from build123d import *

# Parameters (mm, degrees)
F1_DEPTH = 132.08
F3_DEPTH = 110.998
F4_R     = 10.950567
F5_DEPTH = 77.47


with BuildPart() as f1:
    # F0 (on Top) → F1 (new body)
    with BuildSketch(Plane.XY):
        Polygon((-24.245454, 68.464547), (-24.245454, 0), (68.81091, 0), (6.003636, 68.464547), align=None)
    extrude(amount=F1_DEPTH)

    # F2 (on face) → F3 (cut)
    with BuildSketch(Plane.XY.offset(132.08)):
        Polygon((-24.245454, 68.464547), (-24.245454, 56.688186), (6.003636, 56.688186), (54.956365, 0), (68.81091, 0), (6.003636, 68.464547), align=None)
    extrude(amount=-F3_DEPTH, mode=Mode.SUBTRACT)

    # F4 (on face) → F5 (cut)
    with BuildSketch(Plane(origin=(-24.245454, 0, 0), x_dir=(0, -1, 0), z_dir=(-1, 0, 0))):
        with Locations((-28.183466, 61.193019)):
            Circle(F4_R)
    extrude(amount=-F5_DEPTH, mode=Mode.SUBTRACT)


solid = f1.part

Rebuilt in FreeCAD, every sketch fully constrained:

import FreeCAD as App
import Part
import Sketcher
Q = App.Units.Quantity


def add_polygon(sketch, points):
    """Adds a closed chain of lines whose ends are joined by coincident constraints."""
    first, n = sketch.GeometryCount, len(points)
    for a, b in zip(points, points[1:] + points[:1]):
        sketch.addGeometry(Part.LineSegment(App.Vector(*a, 0), App.Vector(*b, 0)), False)
    for i in range(n):
        sketch.addConstraint(Sketcher.Constraint("Coincident", first + i, 2, first + (i + 1) % n, 1))

doc = App.newDocument("Part")
body = doc.addObject("PartDesign::Body", "Body")

# Sketch on XY plane
sketch1 = doc.addObject("Sketcher::SketchObject", "Sketch")
body.addObject(sketch1)
sketch1.AttachmentSupport = (doc.XY_Plane, [""])
sketch1.MapMode = "FlatFace"
add_polygon(sketch1, [(-24, 68), (-24, 0), (69, 0), (6, 68)])  # lines 0-3
sketch1.addConstraint(Sketcher.Constraint("Vertical", 0))
sketch1.addConstraint(Sketcher.Constraint("Horizontal", 1))
sketch1.addConstraint(Sketcher.Constraint("Horizontal", 3))
sketch1.addConstraint(Sketcher.Constraint("PointOnObject", 0, 2, -1))
sketch1.addConstraint(Sketcher.Constraint("DistanceX", 3, 2, 3, 1, Q("30.24909 mm")))
sketch1.addConstraint(Sketcher.Constraint("DistanceX", 1, 1, 1, 2, Q("93.056364 mm")))
sketch1.addConstraint(Sketcher.Constraint("DistanceY", 0, 2, 0, 1, Q("68.464547 mm")))
sketch1.addConstraint(Sketcher.Constraint("DistanceX", -1, 1, 1, 2, Q("68.81091 mm")))
pad1 = doc.addObject("PartDesign::Pad", "Pad")
body.addObject(pad1)
pad1.Profile = sketch1
pad1.Length = Q("5.2 in")

# Sketch on XY plane
sketch2 = doc.addObject("Sketcher::SketchObject", "Sketch001")
body.addObject(sketch2)
sketch2.AttachmentSupport = (doc.XY_Plane, [""])
sketch2.MapMode = "FlatFace"
sketch2.AttachmentOffset = App.Placement(App.Vector(0, 0, 5.2 * 25.4), App.Rotation())
add_polygon(sketch2, [(-24, 68), (-24, 57), (6, 57), (55, 0), (69, 0), (6, 68)])  # lines 0-5
sketch2.addConstraint(Sketcher.Constraint("Vertical", 0))
sketch2.addConstraint(Sketcher.Constraint("Horizontal", 1))
sketch2.addConstraint(Sketcher.Constraint("Horizontal", 3))
sketch2.addConstraint(Sketcher.Constraint("Horizontal", 5))
sketch2.addConstraint(Sketcher.Constraint("PointOnObject", 2, 2, -1))
sketch2.addConstraint(Sketcher.Constraint("Vertical", 1, 2, 4, 2))
sketch2.addConstraint(Sketcher.Constraint("Distance", 2, Q("74.8994 mm")))
sketch2.addConstraint(Sketcher.Constraint("DistanceX", 1, 1, 1, 2, Q("30.24909 mm")))
sketch2.addConstraint(Sketcher.Constraint("DistanceY", 0, 2, 0, 1, Q("11.776361 mm")))
sketch2.addConstraint(Sketcher.Constraint("DistanceX", 3, 1, 3, 2, Q("13.854545 mm")))
sketch2.addConstraint(Sketcher.Constraint("DistanceX", -1, 1, 3, 2, Q("68.81091 mm")))
sketch2.addConstraint(Sketcher.Constraint("DistanceX", 1, 2, 2, 2, Q("48.952729 mm")))
pocket1 = doc.addObject("PartDesign::Pocket", "Pocket")
body.addObject(pocket1)
pocket1.Profile = sketch2
pocket1.Length = Q("4.37 in")

# Sketch on YZ plane
sketch3 = doc.addObject("Sketcher::SketchObject", "Sketch002")
body.addObject(sketch3)
sketch3.AttachmentSupport = (doc.YZ_Plane, [""])
sketch3.MapMode = "FlatFace"
sketch3.AttachmentOffset = App.Placement(App.Vector(0, 0, -24.245454), App.Rotation())
sketch3.addGeometry(Part.Circle(App.Vector(28, 61, 0), App.Vector(0, 0, 1), 11), False)
sketch3.addConstraint(Sketcher.Constraint("Diameter", 0, Q("21.901134 mm")))
sketch3.addConstraint(Sketcher.Constraint("DistanceY", -1, 1, 0, 3, Q("61.193019 mm")))
sketch3.addConstraint(Sketcher.Constraint("DistanceX", -1, 1, 0, 3, Q("28.183466 mm")))
pocket2 = doc.addObject("PartDesign::Pocket", "Pocket001")
body.addObject(pocket2)
pocket2.Profile = sketch3
pocket2.Length = Q("3.05 in")
pocket2.Reversed = True

doc.recompute()
